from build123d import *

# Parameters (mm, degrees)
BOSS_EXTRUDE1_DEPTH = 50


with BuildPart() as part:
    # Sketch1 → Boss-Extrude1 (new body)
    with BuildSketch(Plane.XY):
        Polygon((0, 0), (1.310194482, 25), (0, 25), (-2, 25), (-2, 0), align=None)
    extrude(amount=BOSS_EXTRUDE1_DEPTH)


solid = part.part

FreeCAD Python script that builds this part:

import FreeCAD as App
import Part
import Sketcher
from FreeCAD import Vector
Q = App.Units.Quantity


def add_polygon(sketch, points):
    """Adds a closed chain of lines whose ends are joined by coincident constraints."""
    first, n = sketch.GeometryCount, len(points)
    for a, b in zip(points, points[1:] + points[:1]):
        sketch.addGeometry(Part.LineSegment(App.Vector(*a, 0), App.Vector(*b, 0)), False)
    for i in range(n):
        sketch.addConstraint(Sketcher.Constraint("Coincident", first + i, 2, first + (i + 1) % n, 1))

doc = App.newDocument("Part")
body = doc.addObject("PartDesign::Body", "Body")

# Sketch on XY plane
sketch1 = body.newObject("Sketcher::SketchObject", "Sketch")
sketch1.AttachmentSupport = (doc.getObject("XY_Plane"), [""])
sketch1.MapMode = "FlatFace"
add_polygon(sketch1, [(0, 0), (1.3, 25), (-2, 25), (-2, 0)])  # lines 0-3
sketch1.addConstraint(Sketcher.Constraint("Horizontal", 1))
sketch1.addConstraint(Sketcher.Constraint("Vertical", 2))
sketch1.addConstraint(Sketcher.Constraint("Horizontal", 3))
sketch1.addConstraint(Sketcher.Constraint("Coincident", 3, 2, -1, 1))
sketch1.addConstraint(Sketcher.Constraint("DistanceX", 3, 1, 3, 2, 2.0))
sketch1.addConstraint(Sketcher.Constraint("DistanceY", 2, 2, 2, 1, 25.0))
sketch1.addConstraint(Sketcher.Constraint("Angle", 0, Q("87 deg")))
pad1 = body.newObject("PartDesign::Pad", "Pad")
pad1.Profile = sketch1
pad1.Length = 50

doc.recompute()
